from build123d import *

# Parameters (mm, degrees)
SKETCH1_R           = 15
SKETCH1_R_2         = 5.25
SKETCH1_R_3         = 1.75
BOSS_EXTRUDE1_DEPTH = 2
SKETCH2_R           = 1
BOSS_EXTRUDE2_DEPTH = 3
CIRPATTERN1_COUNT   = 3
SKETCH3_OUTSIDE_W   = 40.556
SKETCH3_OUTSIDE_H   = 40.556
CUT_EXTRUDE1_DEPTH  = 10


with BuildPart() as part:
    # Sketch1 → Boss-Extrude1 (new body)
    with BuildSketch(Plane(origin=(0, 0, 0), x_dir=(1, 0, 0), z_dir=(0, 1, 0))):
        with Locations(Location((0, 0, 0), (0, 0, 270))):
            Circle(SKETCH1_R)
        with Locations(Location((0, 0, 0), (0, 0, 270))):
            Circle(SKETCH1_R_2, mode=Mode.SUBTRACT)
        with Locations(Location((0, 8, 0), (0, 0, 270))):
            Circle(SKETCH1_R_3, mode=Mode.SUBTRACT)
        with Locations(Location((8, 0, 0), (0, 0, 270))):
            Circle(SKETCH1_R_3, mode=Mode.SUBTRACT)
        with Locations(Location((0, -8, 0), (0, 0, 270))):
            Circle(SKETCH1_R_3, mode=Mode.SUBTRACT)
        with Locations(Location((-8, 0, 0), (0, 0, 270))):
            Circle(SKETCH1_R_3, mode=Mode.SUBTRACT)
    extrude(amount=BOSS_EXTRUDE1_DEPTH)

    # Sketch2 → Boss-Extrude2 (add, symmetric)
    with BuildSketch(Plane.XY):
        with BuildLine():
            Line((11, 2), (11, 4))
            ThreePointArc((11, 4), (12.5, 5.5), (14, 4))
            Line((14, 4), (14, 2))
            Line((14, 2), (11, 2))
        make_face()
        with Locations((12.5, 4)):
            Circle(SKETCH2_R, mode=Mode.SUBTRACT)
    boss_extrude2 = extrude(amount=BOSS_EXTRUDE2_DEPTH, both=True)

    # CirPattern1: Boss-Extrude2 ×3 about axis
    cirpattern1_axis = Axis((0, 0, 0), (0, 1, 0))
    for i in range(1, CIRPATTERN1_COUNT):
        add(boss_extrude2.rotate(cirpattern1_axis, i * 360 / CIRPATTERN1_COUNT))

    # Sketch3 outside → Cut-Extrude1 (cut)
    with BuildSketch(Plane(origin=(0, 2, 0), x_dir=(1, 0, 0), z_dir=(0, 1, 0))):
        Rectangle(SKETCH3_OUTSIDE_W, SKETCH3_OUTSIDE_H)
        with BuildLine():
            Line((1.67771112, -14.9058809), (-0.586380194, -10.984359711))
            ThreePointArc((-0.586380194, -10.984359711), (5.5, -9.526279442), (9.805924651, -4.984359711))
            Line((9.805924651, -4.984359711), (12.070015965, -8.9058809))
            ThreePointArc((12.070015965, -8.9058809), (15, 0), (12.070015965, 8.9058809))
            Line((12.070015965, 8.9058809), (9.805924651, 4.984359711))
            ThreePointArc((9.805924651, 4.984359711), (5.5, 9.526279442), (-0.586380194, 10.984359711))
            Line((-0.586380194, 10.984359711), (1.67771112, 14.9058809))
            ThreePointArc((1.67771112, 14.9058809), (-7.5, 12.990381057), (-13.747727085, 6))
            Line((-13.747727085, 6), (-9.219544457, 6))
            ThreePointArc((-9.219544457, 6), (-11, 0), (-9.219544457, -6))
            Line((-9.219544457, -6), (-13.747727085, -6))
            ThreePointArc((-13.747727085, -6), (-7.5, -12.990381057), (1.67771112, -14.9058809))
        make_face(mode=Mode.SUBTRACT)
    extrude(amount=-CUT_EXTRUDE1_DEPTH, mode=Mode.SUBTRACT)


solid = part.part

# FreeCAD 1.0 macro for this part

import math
import FreeCAD as App
import Part
import Sketcher

V = App.Vector
Q = App.Units.Quantity


def add_polygon(sketch, points):
    """Adds a closed chain of lines whose ends are joined by coincident constraints."""
    first, n = sketch.GeometryCount, len(points)
    for a, b in zip(points, points[1:] + points[:1]):
        sketch.addGeometry(Part.LineSegment(App.Vector(*a, 0), App.Vector(*b, 0)), False)
    for i in range(n):
        sketch.addConstraint(Sketcher.Constraint("Coincident", first + i, 2, first + (i + 1) % n, 1))

doc = App.newDocument("Part")
params = doc.addObject("Spreadsheet::Sheet", "Params")
for row, (alias, value) in enumerate([
    ("sketch1_diameter", "30 mm"),
    ("sketch1_diameter2", "3.5 mm"),
    ("sketch1_diameter3", "10.5 mm"),
    ("pad1_length", "2 mm"),
    ("sketch2_diameter", "2 mm"),
    ("sketch2_radius", "1.5 mm"),
    ("sketch2_height", "2 mm"),
    ("pad2_length", "6 mm"),
    ("sketch3_radius", "15 mm"),
    ("sketch3_radius2", "11 mm"),
    ("pocket1_length", "10 mm"),
], start=1):
    params.set(f"A{row}", alias)
    params.set(f"B{row}", "=" + value)
    params.setAlias(f"B{row}", alias)

body = doc.addObject("PartDesign::Body", "Body")

# Sketch on XZ plane
sketch1 = body.newObject("Sketcher::SketchObject", "Sketch")
sketch1.AttachmentSupport = (doc.getObject("XZ_Plane"), [""])
sketch1.MapMode = "FlatFace"
sketch1.addGeometry(Part.Circle(V(0, 0, 0), V(0, 0, 1), 15), False)
sketch1.addGeometry(Part.Circle(V(0, -8, 0), V(0, 0, 1), 1.75), False)
sketch1.addGeometry(Part.Circle(V(-8, 0, 0), V(0, 0, 1), 1.75), False)
sketch1.addGeometry(Part.Circle(V(8, 0, 0), V(0, 0, 1), 1.75), False)
sketch1.addGeometry(Part.Circle(V(0, 0, 0), V(0, 0, 1), 5.25), False)
sketch1.addGeometry(Part.Circle(V(0, 8, 0), V(0, 0, 1), 1.75), False)
sketch1.addConstraint(Sketcher.Constraint("Coincident", 0, 3, -1, 1))
sketch1.addConstraint(Sketcher.Constraint("Coincident", 4, 3, -1, 1))
sketch1.addConstraint(Sketcher.Constraint("Equal", 1, 2))
sketch1.addConstraint(Sketcher.Constraint("Equal", 2, 3))
sketch1.addConstraint(Sketcher.Constraint("Equal", 3, 5))
sketch1.addConstraint(Sketcher.Constraint("Symmetric", 2, 3, 3, 3, -1, 1))
sketch1.addConstraint(Sketcher.Constraint("Symmetric", 1, 3, 5, 3, -1, 1))
sketch1.addConstraint(Sketcher.Constraint("PointOnObject", 1, 3, -2))
sketch1.addConstraint(Sketcher.Constraint("PointOnObject", 2, 3, -1))
sketch1.addConstraint(Sketcher.Constraint("Diameter", 0, 30.0))
sketch1.addConstraint(Sketcher.Constraint("Diameter", 1, 3.5))
sketch1.addConstraint(Sketcher.Constraint("Diameter", 4, 10.5))
sketch1.addConstraint(Sketcher.Constraint("DistanceY", 1, 3, -1, 1, 8.0))
sketch1.addConstraint(Sketcher.Constraint("DistanceX", 2, 3, -1, 1, 8.0))
sketch1.setExpression("Constraints[9]", "Params.sketch1_diameter")
sketch1.setExpression("Constraints[10]", "Params.sketch1_diameter2")
sketch1.setExpression("Constraints[11]", "Params.sketch1_diameter3")
pad1 = body.newObject("PartDesign::Pad", "Pad")
pad1.Profile = sketch1
pad1.setExpression("Length", "Params.pad1_length")
pad1.Reversed = True

# Sketch on XY plane
sketch2 = body.newObject("Sketcher::SketchObject", "Sketch001")
sketch2.AttachmentSupport = (doc.getObject("XY_Plane"), [""])
sketch2.MapMode = "FlatFace"
sketch2.addGeometry(Part.LineSegment(V(11, 4, 0), V(11, 2, 0)), False)
sketch2.addGeometry(Part.LineSegment(V(11, 2, 0), V(14, 2, 0)), False)
sketch2.addGeometry(Part.LineSegment(V(14, 2, 0), V(14, 4, 0)), False)
sketch2.addGeometry(Part.ArcOfCircle(Part.Circle(V(12.5, 4, 0), V(0, 0, 1), 1.5), math.radians(0), math.radians(180)), False)
sketch2.addGeometry(Part.Circle(V(12.5, 4, 0), V(0, 0, 1), 1), False)
sketch2.addConstraint(Sketcher.Constraint("Coincident", 0, 2, 1, 1))
sketch2.addConstraint(Sketcher.Constraint("Coincident", 1, 2, 2, 1))
sketch2.addConstraint(Sketcher.Constraint("Tangent", 2, 2, 3, 1))
sketch2.addConstraint(Sketcher.Constraint("Tangent", 3, 2, 0, 1))
sketch2.addConstraint(Sketcher.Constraint("Vertical", 0))
sketch2.addConstraint(Sketcher.Constraint("Horizontal", 1))
sketch2.addConstraint(Sketcher.Constraint("Vertical", 2))
sketch2.addConstraint(Sketcher.Constraint("Coincident", 4, 3, 3, 3))
sketch2.addConstraint(Sketcher.Constraint("Diameter", 4, 2.0))
sketch2.addConstraint(Sketcher.Constraint("Radius", 3, 1.5))
sketch2.addConstraint(Sketcher.Constraint("DistanceY", 0, 2, 0, 1, 2.0))
sketch2.addConstraint(Sketcher.Constraint("DistanceY", -1, 1, 3, 3, 4.0))
sketch2.addConstraint(Sketcher.Constraint("DistanceX", -1, 1, 0, 2, 11.0))
sketch2.setExpression("Constraints[8]", "Params.sketch2_diameter")
sketch2.setExpression("Constraints[9]", "Params.sketch2_radius")
sketch2.setExpression("Constraints[10]", "Params.sketch2_height")
pad2 = body.newObject("PartDesign::Pad", "Pad001")
pad2.Profile = sketch2
pad2.setExpression("Length", "Params.pad2_length")
pad2.Midplane = True
doc.recompute()

polarpattern = body.newObject("PartDesign::PolarPattern", "PolarPattern")
polarpattern.Originals = [pad2]
polarpattern.Axis = (doc.getObject("Y_Axis"), [""])
polarpattern.Angle = 360
polarpattern.Occurrences = 3
body.Tip = polarpattern

# Sketch on XZ plane
sketch3 = body.newObject("Sketcher::SketchObject", "Sketch002")
sketch3.AttachmentSupport = (doc.getObject("XZ_Plane"), [""])
sketch3.MapMode = "FlatFace"
sketch3.AttachmentOffset = App.Placement(V(0, 0, -2), App.Rotation())
add_polygon(sketch3, [(-20.278, -20.278), (-20.278, 20.278), (20.278, 20.278), (20.278, -20.278)])  # lines 0-3
sketch3.addGeometry(Part.LineSegment(V(-0.58638, 10.98436, 0), V(1.677711, 14.905881, 0)), False)  # 4
sketch3.addGeometry(Part.ArcOfCircle(Part.Circle(V(0, 0, 0), V(0, 0, 1), 15), math.radians(83.578178), math.radians(156.421822)), False)  # 5
sketch3.addGeometry(Part.LineSegment(V(-13.747727, 6, 0), V(-9.219544, 6, 0)), False)  # 6
sketch3.addGeometry(Part.ArcOfCircle(Part.Circle(V(0, 0, 0), V(0, 0, 1), 11), math.radians(146.944269), math.radians(213.055731)), False)  # 7
sketch3.addGeometry(Part.LineSegment(V(-9.219544, -6, 0), V(-13.747727, -6, 0)), False)  # 8
sketch3.addGeometry(Part.ArcOfCircle(Part.Circle(V(0, 0, 0), V(0, 0, 1), 15), math.radians(-156.421822), math.radians(-83.578178)), False)  # 9
sketch3.addGeometry(Part.LineSegment(V(1.677711, -14.905881, 0), V(-0.58638, -10.98436, 0)), False)  # 10
sketch3.addGeometry(Part.ArcOfCircle(Part.Circle(V(0, 0, 0), V(0, 0, 1), 11), math.radians(-93.055731), math.radians(-26.944269)), False)  # 11
sketch3.addGeometry(Part.LineSegment(V(9.805925, -4.98436, 0), V(12.070016, -8.905881, 0)), False)  # 12
sketch3.addGeometry(Part.ArcOfCircle(Part.Circle(V(0, 0, 0), V(0, 0, 1), 15), math.radians(-36.421822), math.radians(36.421822)), False)  # 13
sketch3.addGeometry(Part.LineSegment(V(12.070016, 8.905881, 0), V(9.805925, 4.98436, 0)), False)  # 14
sketch3.addGeometry(Part.ArcOfCircle(Part.Circle(V(0, 0, 0), V(0, 0, 1), 11), math.radians(26.944269), math.radians(93.055731)), False)  # 15
sketch3.addConstraint(Sketcher.Constraint("Coincident", 4, 2, 5, 1))
sketch3.addConstraint(Sketcher.Constraint("Coincident", 5, 2, 6, 1))
sketch3.addConstraint(Sketcher.Constraint("Coincident", 6, 2, 7, 1))
sketch3.addConstraint(Sketcher.Constraint("Coincident", 7, 2, 8, 1))
sketch3.addConstraint(Sketcher.Constraint("Coincident", 8, 2, 9, 1))
sketch3.addConstraint(Sketcher.Constraint("Coincident", 9, 2, 10, 1))
sketch3.addConstraint(Sketcher.Constraint("Coincident", 10, 2, 11, 1))
sketch3.addConstraint(Sketcher.Constraint("Coincident", 11, 2, 12, 1))
sketch3.addConstraint(Sketcher.Constraint("Coincident", 12, 2, 13, 1))
sketch3.addConstraint(Sketcher.Constraint("Coincident", 13, 2, 14, 1))
sketch3.addConstraint(Sketcher.Constraint("Coincident", 14, 2, 15, 1))
sketch3.addConstraint(Sketcher.Constraint("Coincident", 15, 2, 4, 1))
sketch3.addConstraint(Sketcher.Constraint("Vertical", 0))
sketch3.addConstraint(Sketcher.Constraint("Horizontal", 1))
sketch3.addConstraint(Sketcher.Constraint("Vertical", 2))
sketch3.addConstraint(Sketcher.Constraint("Horizontal", 3))
sketch3.addConstraint(Sketcher.Constraint("Horizontal", 6))
sketch3.addConstraint(Sketcher.Constraint("Horizontal", 8))
sketch3.addConstraint(Sketcher.Constraint("Coincident", 5, 3, -1, 1))
sketch3.addConstraint(Sketcher.Constraint("Coincident", 7, 3, -1, 1))
sketch3.addConstraint(Sketcher.Constraint("Coincident", 9, 3, -1, 1))
sketch3.addConstraint(Sketcher.Constraint("Coincident", 11, 3, -1, 1))
sketch3.addConstraint(Sketcher.Constraint("Coincident", 13, 3, -1, 1))
sketch3.addConstraint(Sketcher.Constraint("Coincident", 15, 3, -1, 1))
sketch3.addConstraint(Sketcher.Constraint("Equal", 5, 9))
sketch3.addConstraint(Sketcher.Constraint("Equal", 7, 11))
sketch3.addConstraint(Sketcher.Constraint("Equal", 9, 13))
sketch3.addConstraint(Sketcher.Constraint("Equal", 11, 15))
sketch3.addConstraint(Sketcher.Constraint("Symmetric", 0, 2, 2, 2, -1, 1))
sketch3.addConstraint(Sketcher.Constraint("Parallel", 10, 12))
sketch3.addConstraint(Sketcher.Constraint("Parallel", 4, 14))
sketch3.addConstraint(Sketcher.Constraint("Vertical", 6, 2, 7, 2))
sketch3.addConstraint(Sketcher.Constraint("Vertical", 4, 2, 9, 2))
sketch3.addConstraint(Sketcher.Constraint("Vertical", 12, 2, 13, 2))
sketch3.addConstraint(Sketcher.Constraint("Vertical", 11, 2, 14, 2))
sketch3.addConstraint(Sketcher.Constraint("Equal", 3, 0))
sketch3.addConstraint(Sketcher.Constraint("Equal", 10, 12))
sketch3.addConstraint(Sketcher.Constraint("Radius", 5, 15.0))
sketch3.addConstraint(Sketcher.Constraint("Radius", 7, 11.0))
sketch3.addConstraint(Sketcher.Constraint("Angle", 4, Q("60 deg")))
sketch3.addConstraint(Sketcher.Constraint("DistanceY", -1, 1, 5, 2, 6.0))
sketch3.addConstraint(Sketcher.Constraint("DistanceY", 9, 2, 12, 2, 6.0))
sketch3.addConstraint(Sketcher.Constraint("DistanceX", 1, 1, 1, 2, 40.556))
sketch3.setExpression("Constraints[41]", "Params.sketch3_radius")
sketch3.setExpression("Constraints[42]", "Params.sketch3_radius2")
pocket1 = body.newObject("PartDesign::Pocket", "Pocket")
pocket1.Profile = sketch3
pocket1.setExpression("Length", "Params.pocket1_length")
pocket1.Reversed = True

doc.recompute()
